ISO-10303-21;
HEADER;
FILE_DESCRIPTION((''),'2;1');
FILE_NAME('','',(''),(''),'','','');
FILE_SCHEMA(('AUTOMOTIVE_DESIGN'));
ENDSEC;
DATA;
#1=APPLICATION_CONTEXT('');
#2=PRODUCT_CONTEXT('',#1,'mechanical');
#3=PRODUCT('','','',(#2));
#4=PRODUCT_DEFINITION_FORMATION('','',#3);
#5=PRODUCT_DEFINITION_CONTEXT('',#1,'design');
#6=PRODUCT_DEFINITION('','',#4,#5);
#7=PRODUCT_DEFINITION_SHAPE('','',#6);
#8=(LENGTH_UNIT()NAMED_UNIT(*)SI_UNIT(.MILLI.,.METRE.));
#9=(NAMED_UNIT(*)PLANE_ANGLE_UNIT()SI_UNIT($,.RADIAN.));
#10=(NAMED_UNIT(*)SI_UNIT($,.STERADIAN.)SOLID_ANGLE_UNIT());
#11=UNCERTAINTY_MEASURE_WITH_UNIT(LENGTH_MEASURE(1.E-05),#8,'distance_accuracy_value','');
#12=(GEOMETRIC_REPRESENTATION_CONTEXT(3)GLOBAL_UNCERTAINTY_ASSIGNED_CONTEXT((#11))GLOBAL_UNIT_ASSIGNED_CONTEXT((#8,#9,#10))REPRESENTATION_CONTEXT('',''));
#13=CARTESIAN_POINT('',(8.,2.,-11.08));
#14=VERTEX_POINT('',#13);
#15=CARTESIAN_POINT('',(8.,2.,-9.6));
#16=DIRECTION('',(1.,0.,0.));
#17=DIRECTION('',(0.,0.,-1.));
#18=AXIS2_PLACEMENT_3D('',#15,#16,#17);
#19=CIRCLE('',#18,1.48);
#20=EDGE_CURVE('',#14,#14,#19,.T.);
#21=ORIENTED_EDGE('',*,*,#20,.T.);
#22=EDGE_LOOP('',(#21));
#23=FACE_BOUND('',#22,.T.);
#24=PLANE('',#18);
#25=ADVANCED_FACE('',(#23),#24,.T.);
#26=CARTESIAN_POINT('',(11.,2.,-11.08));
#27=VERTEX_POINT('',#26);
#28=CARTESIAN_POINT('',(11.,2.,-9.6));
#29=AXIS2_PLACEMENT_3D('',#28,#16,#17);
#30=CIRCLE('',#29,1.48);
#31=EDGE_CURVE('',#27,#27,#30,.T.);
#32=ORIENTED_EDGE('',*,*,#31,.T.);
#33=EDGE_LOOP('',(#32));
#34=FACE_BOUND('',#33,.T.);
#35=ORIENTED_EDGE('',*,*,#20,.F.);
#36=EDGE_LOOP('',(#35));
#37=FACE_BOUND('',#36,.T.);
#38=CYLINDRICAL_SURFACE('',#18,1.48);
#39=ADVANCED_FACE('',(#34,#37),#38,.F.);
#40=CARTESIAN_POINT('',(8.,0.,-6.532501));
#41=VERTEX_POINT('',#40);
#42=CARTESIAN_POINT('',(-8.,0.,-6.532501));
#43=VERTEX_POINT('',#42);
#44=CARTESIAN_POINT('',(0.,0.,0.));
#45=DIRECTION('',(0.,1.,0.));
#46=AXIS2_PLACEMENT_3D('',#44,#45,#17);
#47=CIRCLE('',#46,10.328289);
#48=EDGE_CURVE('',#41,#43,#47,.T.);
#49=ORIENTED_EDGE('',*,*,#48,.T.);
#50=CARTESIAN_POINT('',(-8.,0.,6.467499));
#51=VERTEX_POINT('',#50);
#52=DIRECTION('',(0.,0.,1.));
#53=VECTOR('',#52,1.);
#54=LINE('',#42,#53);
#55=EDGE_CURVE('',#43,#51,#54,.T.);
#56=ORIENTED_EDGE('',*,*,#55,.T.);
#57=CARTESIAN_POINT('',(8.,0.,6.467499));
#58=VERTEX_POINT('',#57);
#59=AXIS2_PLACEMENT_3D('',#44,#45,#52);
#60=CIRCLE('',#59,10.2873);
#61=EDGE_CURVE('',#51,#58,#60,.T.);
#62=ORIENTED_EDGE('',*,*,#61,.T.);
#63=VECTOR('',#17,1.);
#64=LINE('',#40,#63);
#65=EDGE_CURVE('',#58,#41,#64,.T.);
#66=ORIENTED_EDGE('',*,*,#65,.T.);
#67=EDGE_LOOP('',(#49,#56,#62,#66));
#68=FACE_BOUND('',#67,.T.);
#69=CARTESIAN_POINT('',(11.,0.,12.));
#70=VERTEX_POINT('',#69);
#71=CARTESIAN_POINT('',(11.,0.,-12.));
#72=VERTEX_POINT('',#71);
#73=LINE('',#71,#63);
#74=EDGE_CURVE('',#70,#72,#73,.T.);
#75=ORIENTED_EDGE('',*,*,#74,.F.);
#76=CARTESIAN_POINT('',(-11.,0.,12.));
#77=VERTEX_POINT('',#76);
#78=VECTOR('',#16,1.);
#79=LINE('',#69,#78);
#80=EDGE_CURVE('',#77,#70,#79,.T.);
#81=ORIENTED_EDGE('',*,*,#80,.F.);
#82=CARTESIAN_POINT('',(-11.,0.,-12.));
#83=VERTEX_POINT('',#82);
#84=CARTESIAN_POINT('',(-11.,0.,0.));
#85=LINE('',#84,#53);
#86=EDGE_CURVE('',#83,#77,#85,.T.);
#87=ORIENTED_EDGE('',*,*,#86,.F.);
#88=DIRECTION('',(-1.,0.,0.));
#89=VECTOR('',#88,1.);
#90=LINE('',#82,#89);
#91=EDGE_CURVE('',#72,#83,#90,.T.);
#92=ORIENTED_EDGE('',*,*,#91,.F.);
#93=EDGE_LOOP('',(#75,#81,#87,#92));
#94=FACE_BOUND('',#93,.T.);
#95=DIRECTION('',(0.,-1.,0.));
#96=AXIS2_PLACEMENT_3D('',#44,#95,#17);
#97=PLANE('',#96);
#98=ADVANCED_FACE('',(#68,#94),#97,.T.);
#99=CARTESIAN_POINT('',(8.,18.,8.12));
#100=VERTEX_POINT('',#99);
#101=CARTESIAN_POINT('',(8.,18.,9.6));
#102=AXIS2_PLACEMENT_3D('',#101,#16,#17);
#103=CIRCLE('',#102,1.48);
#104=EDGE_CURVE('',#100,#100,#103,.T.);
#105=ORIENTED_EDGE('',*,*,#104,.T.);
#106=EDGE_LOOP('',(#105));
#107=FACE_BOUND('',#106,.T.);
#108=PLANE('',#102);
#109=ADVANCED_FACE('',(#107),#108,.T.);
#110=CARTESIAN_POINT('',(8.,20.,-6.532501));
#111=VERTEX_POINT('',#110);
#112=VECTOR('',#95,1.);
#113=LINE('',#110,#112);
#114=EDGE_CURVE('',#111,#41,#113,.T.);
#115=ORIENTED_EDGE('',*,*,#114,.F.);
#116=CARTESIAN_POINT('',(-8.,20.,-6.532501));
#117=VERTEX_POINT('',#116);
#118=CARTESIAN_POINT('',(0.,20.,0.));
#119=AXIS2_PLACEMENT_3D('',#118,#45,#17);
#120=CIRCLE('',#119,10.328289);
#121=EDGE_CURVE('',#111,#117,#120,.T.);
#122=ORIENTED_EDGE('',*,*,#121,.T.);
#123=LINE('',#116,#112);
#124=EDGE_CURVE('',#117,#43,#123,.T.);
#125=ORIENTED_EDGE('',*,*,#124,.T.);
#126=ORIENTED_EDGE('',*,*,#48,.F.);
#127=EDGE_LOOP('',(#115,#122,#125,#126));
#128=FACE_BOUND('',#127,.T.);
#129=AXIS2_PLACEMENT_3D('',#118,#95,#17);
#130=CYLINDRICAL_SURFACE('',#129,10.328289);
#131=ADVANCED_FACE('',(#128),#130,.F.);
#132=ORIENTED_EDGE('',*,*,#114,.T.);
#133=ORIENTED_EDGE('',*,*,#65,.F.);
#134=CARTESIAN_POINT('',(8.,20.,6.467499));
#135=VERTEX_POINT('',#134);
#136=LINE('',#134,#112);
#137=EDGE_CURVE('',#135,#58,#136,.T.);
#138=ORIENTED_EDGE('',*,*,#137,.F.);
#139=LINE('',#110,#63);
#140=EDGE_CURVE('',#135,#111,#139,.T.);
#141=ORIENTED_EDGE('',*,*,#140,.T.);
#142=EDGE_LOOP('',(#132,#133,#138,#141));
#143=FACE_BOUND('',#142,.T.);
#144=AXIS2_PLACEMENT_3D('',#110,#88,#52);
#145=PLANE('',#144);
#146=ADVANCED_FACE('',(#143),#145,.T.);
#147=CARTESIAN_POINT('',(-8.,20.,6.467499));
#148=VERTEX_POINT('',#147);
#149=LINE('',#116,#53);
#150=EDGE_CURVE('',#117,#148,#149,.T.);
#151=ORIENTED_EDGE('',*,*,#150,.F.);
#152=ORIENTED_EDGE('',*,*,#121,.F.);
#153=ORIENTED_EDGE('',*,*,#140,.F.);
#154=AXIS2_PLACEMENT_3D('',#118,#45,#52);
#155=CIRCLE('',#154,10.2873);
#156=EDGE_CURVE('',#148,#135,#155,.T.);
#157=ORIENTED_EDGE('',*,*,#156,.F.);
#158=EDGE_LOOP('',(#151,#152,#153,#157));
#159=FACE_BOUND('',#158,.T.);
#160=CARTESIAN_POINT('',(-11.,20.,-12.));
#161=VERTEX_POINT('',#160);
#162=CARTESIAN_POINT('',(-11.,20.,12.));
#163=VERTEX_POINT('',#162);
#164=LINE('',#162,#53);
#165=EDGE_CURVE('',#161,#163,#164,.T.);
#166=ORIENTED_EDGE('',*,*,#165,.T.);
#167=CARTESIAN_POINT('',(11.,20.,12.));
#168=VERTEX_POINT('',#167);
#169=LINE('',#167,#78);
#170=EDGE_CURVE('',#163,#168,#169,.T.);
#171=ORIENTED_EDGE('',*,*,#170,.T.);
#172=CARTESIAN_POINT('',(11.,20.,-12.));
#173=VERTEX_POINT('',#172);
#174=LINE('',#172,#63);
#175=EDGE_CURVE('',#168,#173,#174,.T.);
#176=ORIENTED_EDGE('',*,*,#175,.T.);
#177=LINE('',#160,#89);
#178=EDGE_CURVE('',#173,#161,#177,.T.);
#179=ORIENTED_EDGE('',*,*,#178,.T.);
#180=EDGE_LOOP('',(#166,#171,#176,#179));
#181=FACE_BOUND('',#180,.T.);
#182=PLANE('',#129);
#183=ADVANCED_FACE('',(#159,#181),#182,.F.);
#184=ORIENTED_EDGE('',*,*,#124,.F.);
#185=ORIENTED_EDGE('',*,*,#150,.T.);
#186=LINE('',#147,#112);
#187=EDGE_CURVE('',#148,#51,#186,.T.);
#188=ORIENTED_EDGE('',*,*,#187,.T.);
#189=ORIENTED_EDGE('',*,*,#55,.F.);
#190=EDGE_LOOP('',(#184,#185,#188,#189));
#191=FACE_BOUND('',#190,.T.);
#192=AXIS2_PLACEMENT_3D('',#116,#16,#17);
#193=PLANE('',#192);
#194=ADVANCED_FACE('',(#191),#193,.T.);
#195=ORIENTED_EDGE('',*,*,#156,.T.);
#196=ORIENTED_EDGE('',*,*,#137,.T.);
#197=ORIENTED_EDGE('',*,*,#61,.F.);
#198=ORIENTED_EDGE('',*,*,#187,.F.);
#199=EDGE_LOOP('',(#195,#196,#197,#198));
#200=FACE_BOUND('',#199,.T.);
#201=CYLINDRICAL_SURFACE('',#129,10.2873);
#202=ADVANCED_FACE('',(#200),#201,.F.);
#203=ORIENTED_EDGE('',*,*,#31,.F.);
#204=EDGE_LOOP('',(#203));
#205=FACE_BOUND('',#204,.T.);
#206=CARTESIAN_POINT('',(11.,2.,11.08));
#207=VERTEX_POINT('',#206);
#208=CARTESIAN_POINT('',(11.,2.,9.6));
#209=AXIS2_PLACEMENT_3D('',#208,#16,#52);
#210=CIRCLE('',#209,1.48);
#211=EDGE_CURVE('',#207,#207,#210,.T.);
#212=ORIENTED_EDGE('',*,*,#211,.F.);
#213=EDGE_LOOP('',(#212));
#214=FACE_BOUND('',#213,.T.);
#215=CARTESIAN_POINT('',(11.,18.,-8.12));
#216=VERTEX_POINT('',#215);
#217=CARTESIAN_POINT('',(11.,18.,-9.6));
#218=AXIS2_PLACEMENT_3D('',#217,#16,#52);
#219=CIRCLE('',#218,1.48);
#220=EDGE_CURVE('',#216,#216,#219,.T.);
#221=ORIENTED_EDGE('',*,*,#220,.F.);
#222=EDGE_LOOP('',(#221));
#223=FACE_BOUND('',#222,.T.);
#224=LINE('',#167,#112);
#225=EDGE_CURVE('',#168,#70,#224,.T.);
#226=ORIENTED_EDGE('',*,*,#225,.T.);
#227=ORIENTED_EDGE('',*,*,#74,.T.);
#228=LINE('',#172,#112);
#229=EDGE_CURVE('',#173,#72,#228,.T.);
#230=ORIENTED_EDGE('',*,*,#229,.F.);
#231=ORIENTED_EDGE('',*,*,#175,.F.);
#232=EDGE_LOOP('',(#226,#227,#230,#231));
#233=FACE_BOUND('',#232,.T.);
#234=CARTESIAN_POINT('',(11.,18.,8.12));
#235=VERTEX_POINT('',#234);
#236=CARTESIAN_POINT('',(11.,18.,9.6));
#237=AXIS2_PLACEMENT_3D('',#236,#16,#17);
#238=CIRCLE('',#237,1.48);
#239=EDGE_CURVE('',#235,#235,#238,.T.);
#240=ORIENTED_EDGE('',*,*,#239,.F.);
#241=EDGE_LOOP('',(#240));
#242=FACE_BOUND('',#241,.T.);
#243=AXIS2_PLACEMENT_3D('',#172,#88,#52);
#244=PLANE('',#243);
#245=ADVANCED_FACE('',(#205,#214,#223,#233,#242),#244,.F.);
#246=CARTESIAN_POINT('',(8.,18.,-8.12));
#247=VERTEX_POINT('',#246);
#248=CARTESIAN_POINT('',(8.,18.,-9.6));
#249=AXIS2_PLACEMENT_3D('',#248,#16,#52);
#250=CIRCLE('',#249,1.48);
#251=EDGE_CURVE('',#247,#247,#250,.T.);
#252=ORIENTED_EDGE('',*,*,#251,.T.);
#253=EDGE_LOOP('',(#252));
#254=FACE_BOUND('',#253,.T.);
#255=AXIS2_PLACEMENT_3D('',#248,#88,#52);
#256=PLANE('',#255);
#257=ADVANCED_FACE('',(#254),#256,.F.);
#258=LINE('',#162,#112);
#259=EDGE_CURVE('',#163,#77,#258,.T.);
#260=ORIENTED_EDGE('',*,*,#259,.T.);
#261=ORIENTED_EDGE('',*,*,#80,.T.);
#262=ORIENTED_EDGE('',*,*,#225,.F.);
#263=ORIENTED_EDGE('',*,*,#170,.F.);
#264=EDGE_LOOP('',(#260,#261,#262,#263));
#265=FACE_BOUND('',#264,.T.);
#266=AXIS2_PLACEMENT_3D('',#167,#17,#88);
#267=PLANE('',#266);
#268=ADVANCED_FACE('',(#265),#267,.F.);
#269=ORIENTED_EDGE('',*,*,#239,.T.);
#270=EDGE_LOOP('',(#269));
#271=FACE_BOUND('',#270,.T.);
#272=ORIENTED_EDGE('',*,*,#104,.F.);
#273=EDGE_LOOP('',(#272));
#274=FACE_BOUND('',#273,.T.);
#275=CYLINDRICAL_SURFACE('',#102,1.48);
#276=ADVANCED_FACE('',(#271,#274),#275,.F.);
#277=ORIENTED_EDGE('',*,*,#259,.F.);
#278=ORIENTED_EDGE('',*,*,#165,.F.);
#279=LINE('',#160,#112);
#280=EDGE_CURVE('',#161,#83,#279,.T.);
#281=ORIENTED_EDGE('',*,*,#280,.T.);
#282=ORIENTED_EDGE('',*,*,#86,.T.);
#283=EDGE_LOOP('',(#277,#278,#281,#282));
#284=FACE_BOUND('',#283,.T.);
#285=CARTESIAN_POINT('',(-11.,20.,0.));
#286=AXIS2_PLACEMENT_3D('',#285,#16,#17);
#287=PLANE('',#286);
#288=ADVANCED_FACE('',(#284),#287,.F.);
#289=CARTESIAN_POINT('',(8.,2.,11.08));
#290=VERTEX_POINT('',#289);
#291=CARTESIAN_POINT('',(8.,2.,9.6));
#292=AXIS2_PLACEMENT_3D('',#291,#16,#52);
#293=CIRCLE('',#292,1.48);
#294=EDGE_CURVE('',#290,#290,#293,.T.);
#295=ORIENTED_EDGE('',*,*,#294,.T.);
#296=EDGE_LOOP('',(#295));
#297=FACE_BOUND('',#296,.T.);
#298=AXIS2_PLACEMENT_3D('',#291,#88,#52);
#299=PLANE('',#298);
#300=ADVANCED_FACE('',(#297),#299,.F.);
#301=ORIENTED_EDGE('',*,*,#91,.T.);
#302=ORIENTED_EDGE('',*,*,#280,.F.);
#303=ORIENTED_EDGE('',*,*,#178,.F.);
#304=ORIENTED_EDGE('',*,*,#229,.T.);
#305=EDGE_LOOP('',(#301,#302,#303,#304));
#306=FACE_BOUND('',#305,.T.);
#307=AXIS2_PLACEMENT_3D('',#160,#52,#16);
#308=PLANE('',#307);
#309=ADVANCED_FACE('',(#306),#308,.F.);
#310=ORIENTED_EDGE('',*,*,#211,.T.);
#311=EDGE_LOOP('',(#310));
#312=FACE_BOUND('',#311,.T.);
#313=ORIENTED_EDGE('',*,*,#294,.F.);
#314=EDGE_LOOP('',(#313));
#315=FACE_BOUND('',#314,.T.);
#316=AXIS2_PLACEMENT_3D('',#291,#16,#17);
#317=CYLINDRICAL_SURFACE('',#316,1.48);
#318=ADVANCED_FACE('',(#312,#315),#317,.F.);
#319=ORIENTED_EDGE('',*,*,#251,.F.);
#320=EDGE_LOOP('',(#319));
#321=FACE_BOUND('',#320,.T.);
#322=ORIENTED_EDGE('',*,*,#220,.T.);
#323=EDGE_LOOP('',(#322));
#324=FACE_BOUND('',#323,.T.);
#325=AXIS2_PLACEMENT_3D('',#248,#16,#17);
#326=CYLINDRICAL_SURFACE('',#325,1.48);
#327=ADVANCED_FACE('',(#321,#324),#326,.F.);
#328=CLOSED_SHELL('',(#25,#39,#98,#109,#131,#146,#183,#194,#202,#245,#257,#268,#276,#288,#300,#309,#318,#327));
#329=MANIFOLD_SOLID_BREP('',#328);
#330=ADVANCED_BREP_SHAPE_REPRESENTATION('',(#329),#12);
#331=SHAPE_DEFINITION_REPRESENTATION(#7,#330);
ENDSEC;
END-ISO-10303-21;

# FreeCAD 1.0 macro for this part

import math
import FreeCAD as App
import Part
import Sketcher
from FreeCAD import Vector

doc = App.newDocument("Part")
body = doc.addObject("PartDesign::Body", "Body")

# Sketch on XZ plane
sketch1 = body.newObject("Sketcher::SketchObject", "Sketch")
sketch1.AttachmentSupport = (doc.getObject("XZ_Plane"), [""])
sketch1.MapMode = "FlatFace"
sketch1.addGeometry([
    Part.LineSegment(Vector(-11, -12, 0), Vector(-11, 12, 0)),  # 0
    Part.LineSegment(Vector(-11, 12, 0), Vector(11, 12, 0)),  # 1
    Part.LineSegment(Vector(11, 12, 0), Vector(11, -12, 0)),  # 2
    Part.LineSegment(Vector(11, -12, 0), Vector(-11, -12, 0)),  # 3
    Part.ArcOfCircle(Part.Circle(Vector(0, 0, 0), Vector(0, 0, 1), 10), math.radians(-141), math.radians(-39)),  # 4
    Part.LineSegment(Vector(8, -7, 0), Vector(8, 6, 0)),  # 5
    Part.ArcOfCircle(Part.Circle(Vector(0, 0, 0), Vector(0, 0, 1), 10), math.radians(39), math.radians(141)),  # 6
    Part.LineSegment(Vector(-8, 6, 0), Vector(-8, -7, 0)),  # 7
], False)
sketch1.addConstraint([
    Sketcher.Constraint("Coincident", 0, 2, 1, 1),
    Sketcher.Constraint("Coincident", 1, 2, 2, 1),
    Sketcher.Constraint("Coincident", 2, 2, 3, 1),
    Sketcher.Constraint("Coincident", 3, 2, 0, 1),
    Sketcher.Constraint("Coincident", 4, 2, 5, 1),
    Sketcher.Constraint("Coincident", 5, 2, 6, 1),
    Sketcher.Constraint("Coincident", 6, 2, 7, 1),
    Sketcher.Constraint("Coincident", 7, 2, 4, 1),
    Sketcher.Constraint("Vertical", 0),
    Sketcher.Constraint("Horizontal", 1),
    Sketcher.Constraint("Vertical", 2),
    Sketcher.Constraint("Horizontal", 3),
    Sketcher.Constraint("Vertical", 5),
    Sketcher.Constraint("Vertical", 7),
    Sketcher.Constraint("Coincident", 4, 3, -1, 1),
    Sketcher.Constraint("Coincident", 6, 3, -1, 1),
    Sketcher.Constraint("Symmetric", 0, 2, 2, 2, -1, 1),
    Sketcher.Constraint("Horizontal", 5, 2, 6, 2),
    Sketcher.Constraint("DistanceX", 1, 1, 1, 2, 22.0),
    Sketcher.Constraint("DistanceY", 0, 1, 0, 2, 24.0),
    Sketcher.Constraint("DistanceY", 5, 1, 5, 2, 13.0),
    Sketcher.Constraint("DistanceX", -1, 1, 4, 2, 8.0),
    Sketcher.Constraint("Radius", 6, 10.2873),
])
pad1 = body.newObject("PartDesign::Pad", "Pad")
pad1.Profile = sketch1
pad1.Length = 20
pad1.Reversed = True

# Sketch on YZ plane
sketch2 = body.newObject("Sketcher::SketchObject", "Sketch001")
sketch2.AttachmentSupport = (doc.getObject("YZ_Plane"), [""])
sketch2.MapMode = "FlatFace"
sketch2.AttachmentOffset = App.Placement(Vector(0, 0, 11), App.Rotation())
sketch2.addGeometry([
    Part.Circle(Vector(18, 9.6, 0), Vector(0, 0, 1), 1.5),
    Part.Circle(Vector(18, -9.6, 0), Vector(0, 0, 1), 1.5),
    Part.Circle(Vector(2, -9.6, 0), Vector(0, 0, 1), 1.5),
    Part.Circle(Vector(2, 9.6, 0), Vector(0, 0, 1), 1.5),
], False)
sketch2.addConstraint([
    Sketcher.Constraint("Equal", 0, 1),
    Sketcher.Constraint("Equal", 1, 2),
    Sketcher.Constraint("Equal", 2, 3),
    Sketcher.Constraint("Symmetric", 0, 3, 1, 3, -1),
    Sketcher.Constraint("Symmetric", 2, 3, 3, 3, -1),
    Sketcher.Constraint("Horizontal", 1, 3, 2, 3),
    Sketcher.Constraint("Diameter", 0, 2.96),
    Sketcher.Constraint("DistanceX", -1, 1, 0, 3, 18.0),
    Sketcher.Constraint("DistanceX", -1, 1, 2, 3, 2.0),
    Sketcher.Constraint("DistanceY", -1, 1, 0, 3, 9.6),
])
pocket1 = body.newObject("PartDesign::Pocket", "Pocket")
pocket1.Profile = sketch2
pocket1.Length = 3

doc.recompute()
